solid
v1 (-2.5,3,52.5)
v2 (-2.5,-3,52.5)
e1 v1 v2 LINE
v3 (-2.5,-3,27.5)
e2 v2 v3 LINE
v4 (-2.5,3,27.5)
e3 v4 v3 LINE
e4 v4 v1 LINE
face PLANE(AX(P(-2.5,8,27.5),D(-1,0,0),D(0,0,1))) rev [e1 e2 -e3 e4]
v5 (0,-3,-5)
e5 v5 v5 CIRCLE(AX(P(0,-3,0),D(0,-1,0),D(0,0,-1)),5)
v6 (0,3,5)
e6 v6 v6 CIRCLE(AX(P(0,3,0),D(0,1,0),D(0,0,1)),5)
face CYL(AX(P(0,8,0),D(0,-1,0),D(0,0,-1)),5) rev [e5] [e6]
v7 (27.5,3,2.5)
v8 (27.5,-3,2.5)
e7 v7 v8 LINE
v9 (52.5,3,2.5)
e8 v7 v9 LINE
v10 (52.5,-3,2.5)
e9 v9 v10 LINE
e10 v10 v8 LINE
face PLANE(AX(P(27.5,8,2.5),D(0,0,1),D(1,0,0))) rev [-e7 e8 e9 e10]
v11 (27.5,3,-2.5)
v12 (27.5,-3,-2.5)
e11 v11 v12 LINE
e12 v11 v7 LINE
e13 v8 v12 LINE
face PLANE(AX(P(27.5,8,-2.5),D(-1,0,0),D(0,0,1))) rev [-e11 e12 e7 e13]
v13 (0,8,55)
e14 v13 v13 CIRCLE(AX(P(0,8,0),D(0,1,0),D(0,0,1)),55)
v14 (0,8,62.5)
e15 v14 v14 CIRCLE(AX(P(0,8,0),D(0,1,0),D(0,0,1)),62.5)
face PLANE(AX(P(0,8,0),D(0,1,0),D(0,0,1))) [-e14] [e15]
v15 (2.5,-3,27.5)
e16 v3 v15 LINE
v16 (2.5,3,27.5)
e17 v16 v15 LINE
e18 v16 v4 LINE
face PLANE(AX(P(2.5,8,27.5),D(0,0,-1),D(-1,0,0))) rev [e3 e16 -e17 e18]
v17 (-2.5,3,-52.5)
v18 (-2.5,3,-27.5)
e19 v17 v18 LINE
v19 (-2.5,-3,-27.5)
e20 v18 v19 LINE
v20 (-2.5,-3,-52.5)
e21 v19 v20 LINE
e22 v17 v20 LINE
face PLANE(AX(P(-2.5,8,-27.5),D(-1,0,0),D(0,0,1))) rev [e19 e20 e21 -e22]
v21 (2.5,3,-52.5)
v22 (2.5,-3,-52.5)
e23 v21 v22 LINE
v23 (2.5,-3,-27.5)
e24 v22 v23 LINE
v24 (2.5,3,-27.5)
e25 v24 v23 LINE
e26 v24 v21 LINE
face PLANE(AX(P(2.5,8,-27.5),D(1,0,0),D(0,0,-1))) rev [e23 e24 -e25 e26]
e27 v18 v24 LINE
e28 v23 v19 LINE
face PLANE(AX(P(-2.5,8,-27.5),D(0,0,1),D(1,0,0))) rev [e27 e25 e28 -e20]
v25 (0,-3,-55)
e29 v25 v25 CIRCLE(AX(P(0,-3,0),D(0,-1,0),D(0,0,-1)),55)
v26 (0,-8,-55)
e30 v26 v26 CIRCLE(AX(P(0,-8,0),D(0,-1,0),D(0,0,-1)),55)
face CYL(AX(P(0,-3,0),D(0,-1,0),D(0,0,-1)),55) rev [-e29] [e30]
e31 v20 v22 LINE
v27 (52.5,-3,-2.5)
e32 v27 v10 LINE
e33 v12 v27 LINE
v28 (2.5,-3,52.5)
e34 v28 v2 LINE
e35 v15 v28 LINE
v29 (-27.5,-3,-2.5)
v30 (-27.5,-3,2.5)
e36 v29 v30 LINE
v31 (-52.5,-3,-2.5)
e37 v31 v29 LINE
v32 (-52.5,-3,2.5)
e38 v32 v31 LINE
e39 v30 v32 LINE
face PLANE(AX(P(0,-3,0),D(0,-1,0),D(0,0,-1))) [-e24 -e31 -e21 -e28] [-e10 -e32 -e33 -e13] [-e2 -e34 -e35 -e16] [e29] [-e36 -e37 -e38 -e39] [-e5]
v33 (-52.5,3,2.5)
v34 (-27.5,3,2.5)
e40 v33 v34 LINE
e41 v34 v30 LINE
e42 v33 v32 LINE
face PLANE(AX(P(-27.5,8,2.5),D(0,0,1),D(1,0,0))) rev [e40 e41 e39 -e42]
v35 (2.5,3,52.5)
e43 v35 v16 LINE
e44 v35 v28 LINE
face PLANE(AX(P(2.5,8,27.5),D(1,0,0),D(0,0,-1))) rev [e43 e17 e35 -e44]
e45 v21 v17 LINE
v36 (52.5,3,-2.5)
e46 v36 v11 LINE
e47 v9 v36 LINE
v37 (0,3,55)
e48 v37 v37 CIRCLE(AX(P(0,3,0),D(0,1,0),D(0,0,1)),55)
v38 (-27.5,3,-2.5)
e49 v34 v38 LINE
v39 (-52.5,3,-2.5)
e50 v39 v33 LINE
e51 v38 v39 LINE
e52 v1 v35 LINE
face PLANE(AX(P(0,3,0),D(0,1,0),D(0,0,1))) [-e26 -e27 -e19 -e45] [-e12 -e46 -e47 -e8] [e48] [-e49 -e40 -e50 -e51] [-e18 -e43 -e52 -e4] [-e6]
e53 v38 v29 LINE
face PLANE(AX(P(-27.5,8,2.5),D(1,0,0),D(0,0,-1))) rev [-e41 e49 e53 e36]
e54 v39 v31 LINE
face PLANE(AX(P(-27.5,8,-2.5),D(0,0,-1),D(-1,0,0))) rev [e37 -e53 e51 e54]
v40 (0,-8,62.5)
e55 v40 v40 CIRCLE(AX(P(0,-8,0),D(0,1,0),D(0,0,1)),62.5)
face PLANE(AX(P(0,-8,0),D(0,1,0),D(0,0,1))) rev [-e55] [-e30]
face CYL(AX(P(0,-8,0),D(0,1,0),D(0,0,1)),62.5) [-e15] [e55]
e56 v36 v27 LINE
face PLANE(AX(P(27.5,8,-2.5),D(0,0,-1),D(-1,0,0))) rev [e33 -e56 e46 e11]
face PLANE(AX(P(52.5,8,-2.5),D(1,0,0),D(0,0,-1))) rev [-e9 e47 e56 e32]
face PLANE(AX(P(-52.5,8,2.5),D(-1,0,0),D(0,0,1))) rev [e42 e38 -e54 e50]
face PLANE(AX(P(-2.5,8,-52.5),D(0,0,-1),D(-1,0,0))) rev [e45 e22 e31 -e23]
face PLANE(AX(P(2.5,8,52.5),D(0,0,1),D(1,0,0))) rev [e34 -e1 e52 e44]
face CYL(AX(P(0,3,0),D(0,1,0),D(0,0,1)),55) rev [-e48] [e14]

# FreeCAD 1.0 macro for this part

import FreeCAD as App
import Part
import Sketcher
from FreeCAD import Vector

doc = App.newDocument("Part")
body = doc.addObject("PartDesign::Body", "Body")

# Sketch on XZ plane
sketch1 = body.newObject("Sketcher::SketchObject", "Sketch")
sketch1.AttachmentSupport = (doc.getObject("XZ_Plane"), [""])
sketch1.MapMode = "FlatFace"
sketch1.addGeometry(Part.Circle(Vector(0, 0, 0), Vector(0, 0, 1), 62), False)
sketch1.addConstraint([
    Sketcher.Constraint("Coincident", 0, 3, -1, 1),
    Sketcher.Constraint("Diameter", 0, 125.0),
])
pad1 = body.newObject("PartDesign::Pad", "Pad")
pad1.Profile = sketch1
pad1.Type = "TwoLengths"
pad1.Length = 8
pad1.Length2 = 8
pad1.Reversed = True

# Sketch on XZ plane
sketch2 = body.newObject("Sketcher::SketchObject", "Sketch001")
sketch2.AttachmentSupport = (doc.getObject("XZ_Plane"), [""])
sketch2.MapMode = "FlatFace"
sketch2.AttachmentOffset = App.Placement(Vector(0, 0, -8), App.Rotation())
sketch2.addGeometry(Part.Circle(Vector(0, 0, 0), Vector(0, 0, 1), 55), False)
sketch2.addConstraint([
    Sketcher.Constraint("Coincident", 0, 3, -1, 1),
    Sketcher.Constraint("Diameter", 0, 110.0),
])
pocket1 = body.newObject("PartDesign::Pocket", "Pocket")
pocket1.Profile = sketch2
pocket1.Length = 5
pocket1.Reversed = True

# Sketch on XZ plane
sketch3 = body.newObject("Sketcher::SketchObject", "Sketch002")
sketch3.AttachmentSupport = (doc.getObject("XZ_Plane"), [""])
sketch3.MapMode = "FlatFace"
sketch3.AttachmentOffset = App.Placement(Vector(0, 0, 8), App.Rotation())
sketch3.addGeometry(Part.Circle(Vector(0, 0, 0), Vector(0, 0, 1), 55), False)
sketch3.addConstraint([
    Sketcher.Constraint("Coincident", 0, 3, -1, 1),
    Sketcher.Constraint("Diameter", 0, 110.0),
])
pocket2 = body.newObject("PartDesign::Pocket", "Pocket001")
pocket2.Profile = sketch3
pocket2.Length = 5

# Sketch on XZ plane
sketch4 = body.newObject("Sketcher::SketchObject", "Sketch003")
sketch4.AttachmentSupport = (doc.getObject("XZ_Plane"), [""])
sketch4.MapMode = "FlatFace"
sketch4.AttachmentOffset = App.Placement(Vector(0, 0, 3), App.Rotation())
sketch4.addGeometry(Part.Circle(Vector(0, 0, 0), Vector(0, 0, 1), 5), False)
sketch4.addConstraint([
    Sketcher.Constraint("Coincident", 0, 3, -1, 1),
    Sketcher.Constraint("Diameter", 0, 10.0),
])
pocket3 = body.newObject("PartDesign::Pocket", "Pocket002")
pocket3.Profile = sketch4
pocket3.Type = "ThroughAll"

# Sketch on XZ plane
sketch5 = body.newObject("Sketcher::SketchObject", "Sketch004")
sketch5.AttachmentSupport = (doc.getObject("XZ_Plane"), [""])
sketch5.MapMode = "FlatFace"
sketch5.AttachmentOffset = App.Placement(Vector(0, 0, 3), App.Rotation())
sketch5.addGeometry([
    Part.LineSegment(Vector(-2, 52, 0), Vector(-2, 28, 0)),
    Part.LineSegment(Vector(-2, 28, 0), Vector(2, 28, 0)),
    Part.LineSegment(Vector(2, 28, 0), Vector(2, 52, 0)),
    Part.LineSegment(Vector(2, 52, 0), Vector(-2, 52, 0)),
], False)
sketch5.addConstraint([
    Sketcher.Constraint("Coincident", 0, 2, 1, 1),
    Sketcher.Constraint("Coincident", 1, 2, 2, 1),
    Sketcher.Constraint("Coincident", 2, 2, 3, 1),
    Sketcher.Constraint("Coincident", 3, 2, 0, 1),
    Sketcher.Constraint("Vertical", 0),
    Sketcher.Constraint("Horizontal", 1),
    Sketcher.Constraint("Vertical", 2),
    Sketcher.Constraint("Horizontal", 3),
    Sketcher.Constraint("DistanceX", 1, 1, 1, 2, 5.0),
    Sketcher.Constraint("DistanceY", 0, 2, 0, 1, 25.0),
    Sketcher.Constraint("DistanceX", 0, 2, -1, 1, 2.5),
    Sketcher.Constraint("DistanceY", -1, 1, 0, 2, 27.5),
])
pocket4 = body.newObject("PartDesign::Pocket", "Pocket003")
pocket4.Profile = sketch5
pocket4.Type = "ThroughAll"
doc.recompute()

polarpattern = body.newObject("PartDesign::PolarPattern", "PolarPattern")
polarpattern.Originals = [pocket4]
polarpattern.Axis = (doc.getObject("Y_Axis"), [""])
polarpattern.Angle = 360
polarpattern.Occurrences = 4
body.Tip = polarpattern

doc.recompute()
